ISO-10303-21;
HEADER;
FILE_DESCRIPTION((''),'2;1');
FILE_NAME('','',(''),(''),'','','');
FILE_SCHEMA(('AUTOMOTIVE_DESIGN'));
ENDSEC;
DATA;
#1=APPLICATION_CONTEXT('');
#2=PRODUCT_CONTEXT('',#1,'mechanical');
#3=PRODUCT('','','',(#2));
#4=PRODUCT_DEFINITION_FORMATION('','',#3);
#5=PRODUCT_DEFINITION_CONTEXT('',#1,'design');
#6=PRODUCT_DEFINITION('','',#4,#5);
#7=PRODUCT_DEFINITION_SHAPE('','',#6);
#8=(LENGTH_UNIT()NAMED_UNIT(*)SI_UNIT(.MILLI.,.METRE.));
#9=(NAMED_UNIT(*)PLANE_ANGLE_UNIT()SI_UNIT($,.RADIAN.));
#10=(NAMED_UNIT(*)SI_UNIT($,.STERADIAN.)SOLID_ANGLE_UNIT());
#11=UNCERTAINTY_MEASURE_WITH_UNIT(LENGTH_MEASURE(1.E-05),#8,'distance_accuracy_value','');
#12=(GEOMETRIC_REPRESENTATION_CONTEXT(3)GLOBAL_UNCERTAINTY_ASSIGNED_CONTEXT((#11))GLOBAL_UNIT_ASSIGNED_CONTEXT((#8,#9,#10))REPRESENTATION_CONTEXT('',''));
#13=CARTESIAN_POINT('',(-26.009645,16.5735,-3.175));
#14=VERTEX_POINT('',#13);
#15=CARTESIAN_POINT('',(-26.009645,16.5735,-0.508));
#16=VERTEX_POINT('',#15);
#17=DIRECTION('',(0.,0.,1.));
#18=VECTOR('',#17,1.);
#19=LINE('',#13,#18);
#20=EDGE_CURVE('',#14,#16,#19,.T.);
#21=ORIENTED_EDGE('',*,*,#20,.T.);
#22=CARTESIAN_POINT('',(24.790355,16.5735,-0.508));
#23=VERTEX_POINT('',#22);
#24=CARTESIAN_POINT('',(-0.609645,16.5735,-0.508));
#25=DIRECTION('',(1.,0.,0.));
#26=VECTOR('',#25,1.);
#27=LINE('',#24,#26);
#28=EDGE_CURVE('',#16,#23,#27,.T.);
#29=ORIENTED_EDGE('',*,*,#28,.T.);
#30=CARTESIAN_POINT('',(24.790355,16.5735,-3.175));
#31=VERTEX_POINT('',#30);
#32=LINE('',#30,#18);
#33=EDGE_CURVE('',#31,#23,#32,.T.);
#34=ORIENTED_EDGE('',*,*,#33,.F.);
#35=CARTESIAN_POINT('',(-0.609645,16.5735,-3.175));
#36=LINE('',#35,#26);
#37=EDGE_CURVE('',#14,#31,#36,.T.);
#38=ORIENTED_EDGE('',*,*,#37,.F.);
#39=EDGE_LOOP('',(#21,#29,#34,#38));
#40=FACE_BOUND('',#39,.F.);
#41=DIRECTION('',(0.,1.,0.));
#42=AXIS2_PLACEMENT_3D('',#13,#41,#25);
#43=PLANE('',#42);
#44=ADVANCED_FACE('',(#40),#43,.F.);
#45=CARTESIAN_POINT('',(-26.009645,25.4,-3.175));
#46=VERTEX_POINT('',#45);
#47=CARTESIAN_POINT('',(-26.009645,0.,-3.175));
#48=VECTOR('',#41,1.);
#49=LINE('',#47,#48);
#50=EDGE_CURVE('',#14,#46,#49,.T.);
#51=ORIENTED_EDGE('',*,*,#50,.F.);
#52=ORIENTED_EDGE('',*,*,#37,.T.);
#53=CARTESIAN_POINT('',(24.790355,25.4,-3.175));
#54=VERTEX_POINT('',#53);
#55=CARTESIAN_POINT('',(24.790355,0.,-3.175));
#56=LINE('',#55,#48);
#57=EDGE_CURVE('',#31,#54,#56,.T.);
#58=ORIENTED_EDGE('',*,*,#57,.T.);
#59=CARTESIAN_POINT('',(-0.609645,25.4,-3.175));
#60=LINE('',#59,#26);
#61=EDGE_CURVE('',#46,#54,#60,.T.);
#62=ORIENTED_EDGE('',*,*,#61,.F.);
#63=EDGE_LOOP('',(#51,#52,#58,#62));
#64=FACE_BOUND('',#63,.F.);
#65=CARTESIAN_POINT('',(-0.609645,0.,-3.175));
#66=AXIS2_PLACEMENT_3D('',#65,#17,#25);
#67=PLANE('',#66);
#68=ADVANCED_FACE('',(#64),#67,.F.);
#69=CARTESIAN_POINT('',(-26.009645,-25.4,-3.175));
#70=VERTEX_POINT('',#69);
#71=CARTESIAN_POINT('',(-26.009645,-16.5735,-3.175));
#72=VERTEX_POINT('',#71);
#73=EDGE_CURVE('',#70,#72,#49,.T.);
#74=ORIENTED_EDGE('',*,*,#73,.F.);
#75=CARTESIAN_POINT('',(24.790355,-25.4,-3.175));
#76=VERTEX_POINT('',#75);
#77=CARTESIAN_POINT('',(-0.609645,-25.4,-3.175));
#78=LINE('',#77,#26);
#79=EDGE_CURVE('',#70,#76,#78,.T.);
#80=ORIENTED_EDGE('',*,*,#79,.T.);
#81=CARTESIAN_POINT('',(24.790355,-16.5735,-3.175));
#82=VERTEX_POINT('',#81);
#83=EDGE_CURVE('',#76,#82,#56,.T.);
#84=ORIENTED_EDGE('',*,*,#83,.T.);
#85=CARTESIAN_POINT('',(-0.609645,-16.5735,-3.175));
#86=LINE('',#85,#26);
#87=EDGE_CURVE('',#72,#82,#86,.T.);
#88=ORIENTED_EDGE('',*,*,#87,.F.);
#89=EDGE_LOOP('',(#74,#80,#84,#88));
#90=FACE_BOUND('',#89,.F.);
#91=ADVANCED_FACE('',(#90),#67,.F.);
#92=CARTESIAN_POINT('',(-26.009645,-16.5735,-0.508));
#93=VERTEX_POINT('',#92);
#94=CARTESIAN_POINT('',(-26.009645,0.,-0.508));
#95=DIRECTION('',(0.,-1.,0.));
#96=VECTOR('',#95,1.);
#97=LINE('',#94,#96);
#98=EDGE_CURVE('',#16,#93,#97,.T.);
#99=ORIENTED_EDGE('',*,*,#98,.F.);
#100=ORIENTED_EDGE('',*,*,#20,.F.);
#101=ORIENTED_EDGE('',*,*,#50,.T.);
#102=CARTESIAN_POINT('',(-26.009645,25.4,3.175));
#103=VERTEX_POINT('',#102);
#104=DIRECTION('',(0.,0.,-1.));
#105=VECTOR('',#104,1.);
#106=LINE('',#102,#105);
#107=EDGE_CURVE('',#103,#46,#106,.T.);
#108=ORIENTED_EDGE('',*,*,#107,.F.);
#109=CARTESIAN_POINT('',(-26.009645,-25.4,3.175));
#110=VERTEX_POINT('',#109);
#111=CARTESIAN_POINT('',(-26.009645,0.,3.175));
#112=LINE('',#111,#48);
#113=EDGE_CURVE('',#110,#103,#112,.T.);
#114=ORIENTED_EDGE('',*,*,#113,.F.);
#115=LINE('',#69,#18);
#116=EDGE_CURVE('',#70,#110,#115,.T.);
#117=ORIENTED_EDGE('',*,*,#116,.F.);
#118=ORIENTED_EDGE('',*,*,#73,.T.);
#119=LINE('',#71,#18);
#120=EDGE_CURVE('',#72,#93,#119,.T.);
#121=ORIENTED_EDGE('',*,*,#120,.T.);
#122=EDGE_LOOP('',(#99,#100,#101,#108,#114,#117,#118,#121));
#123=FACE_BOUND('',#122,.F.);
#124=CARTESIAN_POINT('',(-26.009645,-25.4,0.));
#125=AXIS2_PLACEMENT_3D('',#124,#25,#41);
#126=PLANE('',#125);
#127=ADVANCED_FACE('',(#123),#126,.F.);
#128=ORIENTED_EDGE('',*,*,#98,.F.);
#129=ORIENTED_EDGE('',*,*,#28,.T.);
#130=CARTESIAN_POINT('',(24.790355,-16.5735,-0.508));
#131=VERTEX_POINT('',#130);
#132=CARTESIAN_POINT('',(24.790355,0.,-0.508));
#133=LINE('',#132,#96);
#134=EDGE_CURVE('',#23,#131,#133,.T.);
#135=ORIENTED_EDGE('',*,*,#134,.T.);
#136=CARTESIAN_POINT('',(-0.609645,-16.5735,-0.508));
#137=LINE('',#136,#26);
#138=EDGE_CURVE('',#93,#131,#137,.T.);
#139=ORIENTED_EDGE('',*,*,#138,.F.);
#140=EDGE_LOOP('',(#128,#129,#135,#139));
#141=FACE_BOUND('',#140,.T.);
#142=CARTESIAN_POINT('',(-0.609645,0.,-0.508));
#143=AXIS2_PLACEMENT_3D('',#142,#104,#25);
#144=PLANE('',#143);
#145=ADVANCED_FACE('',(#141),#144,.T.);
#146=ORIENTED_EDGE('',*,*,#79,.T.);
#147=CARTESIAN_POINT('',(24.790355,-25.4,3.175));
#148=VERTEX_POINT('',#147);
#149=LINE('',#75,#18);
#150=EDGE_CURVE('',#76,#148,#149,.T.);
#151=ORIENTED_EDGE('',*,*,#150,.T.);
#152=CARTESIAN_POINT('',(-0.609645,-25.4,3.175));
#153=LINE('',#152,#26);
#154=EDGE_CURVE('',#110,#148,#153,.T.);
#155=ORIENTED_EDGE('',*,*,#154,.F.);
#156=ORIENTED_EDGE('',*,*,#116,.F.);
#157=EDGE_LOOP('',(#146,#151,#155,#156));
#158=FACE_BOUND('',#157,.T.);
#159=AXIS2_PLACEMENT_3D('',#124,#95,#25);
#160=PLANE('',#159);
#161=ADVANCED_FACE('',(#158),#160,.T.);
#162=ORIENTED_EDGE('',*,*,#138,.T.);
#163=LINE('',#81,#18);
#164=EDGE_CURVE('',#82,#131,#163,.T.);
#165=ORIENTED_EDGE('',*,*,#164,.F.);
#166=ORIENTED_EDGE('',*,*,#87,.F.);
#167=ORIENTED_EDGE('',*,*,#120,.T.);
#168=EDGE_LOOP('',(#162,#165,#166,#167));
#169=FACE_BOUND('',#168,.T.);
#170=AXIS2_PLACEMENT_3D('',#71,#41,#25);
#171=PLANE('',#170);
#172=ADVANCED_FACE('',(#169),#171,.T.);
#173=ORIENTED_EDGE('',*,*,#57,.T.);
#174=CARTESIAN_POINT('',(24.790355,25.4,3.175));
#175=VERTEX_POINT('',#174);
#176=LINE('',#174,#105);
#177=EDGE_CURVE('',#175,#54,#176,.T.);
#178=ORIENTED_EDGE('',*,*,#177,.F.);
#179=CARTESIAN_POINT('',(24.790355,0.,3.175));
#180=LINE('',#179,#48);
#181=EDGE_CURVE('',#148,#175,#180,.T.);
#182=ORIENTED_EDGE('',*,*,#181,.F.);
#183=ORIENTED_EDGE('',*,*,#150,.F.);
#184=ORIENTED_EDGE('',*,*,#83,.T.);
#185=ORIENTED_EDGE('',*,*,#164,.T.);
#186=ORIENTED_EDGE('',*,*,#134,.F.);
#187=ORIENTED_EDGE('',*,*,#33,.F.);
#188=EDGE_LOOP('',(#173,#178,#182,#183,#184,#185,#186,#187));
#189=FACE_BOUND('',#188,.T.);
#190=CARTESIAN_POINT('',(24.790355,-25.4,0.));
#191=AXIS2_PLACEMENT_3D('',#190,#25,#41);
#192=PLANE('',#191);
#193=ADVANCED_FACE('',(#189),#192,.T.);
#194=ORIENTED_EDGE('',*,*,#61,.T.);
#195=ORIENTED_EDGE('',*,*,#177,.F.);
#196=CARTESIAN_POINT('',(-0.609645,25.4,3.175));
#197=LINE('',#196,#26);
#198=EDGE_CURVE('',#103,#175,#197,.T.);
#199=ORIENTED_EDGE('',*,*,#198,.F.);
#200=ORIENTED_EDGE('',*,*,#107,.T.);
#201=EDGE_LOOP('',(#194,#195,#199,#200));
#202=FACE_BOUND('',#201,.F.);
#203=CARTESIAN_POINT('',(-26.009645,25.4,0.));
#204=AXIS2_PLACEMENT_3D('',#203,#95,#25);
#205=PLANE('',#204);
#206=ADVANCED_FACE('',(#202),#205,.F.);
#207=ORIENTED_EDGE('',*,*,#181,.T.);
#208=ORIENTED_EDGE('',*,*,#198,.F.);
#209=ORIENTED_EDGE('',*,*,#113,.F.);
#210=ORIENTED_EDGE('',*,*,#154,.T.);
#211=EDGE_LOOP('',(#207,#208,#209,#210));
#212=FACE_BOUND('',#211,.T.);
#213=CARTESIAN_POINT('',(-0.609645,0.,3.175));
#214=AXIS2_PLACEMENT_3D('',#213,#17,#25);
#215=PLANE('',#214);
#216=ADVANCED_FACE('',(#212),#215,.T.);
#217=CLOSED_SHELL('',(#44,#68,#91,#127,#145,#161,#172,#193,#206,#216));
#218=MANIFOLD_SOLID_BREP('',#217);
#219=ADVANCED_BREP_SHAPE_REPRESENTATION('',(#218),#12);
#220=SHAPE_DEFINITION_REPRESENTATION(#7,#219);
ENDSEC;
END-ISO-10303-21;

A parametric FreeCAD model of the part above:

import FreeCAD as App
import Part
import Sketcher

V = App.Vector
Q = App.Units.Quantity

doc = App.newDocument("Part")
params = doc.addObject("Spreadsheet::Sheet", "Params")
for row, (alias, value) in enumerate([
    ("sketch1_width", "2 in"),
    ("pad1_length", "0.25 in"),
    ("sketch2_width", "2 in"),
    ("sketch2_height", "1.305 in"),
    ("pocket1_length", "0.105 in"),
], start=1):
    params.set(f"A{row}", alias)
    params.set(f"B{row}", "=" + value)
    params.setAlias(f"B{row}", alias)

body = doc.addObject("PartDesign::Body", "Body")

# Sketch on XY plane
sketch1 = body.newObject("Sketcher::SketchObject", "Sketch")
sketch1.AttachmentSupport = (doc.getObject("XY_Plane"), [""])
sketch1.MapMode = "FlatFace"
sketch1.addGeometry([
    Part.LineSegment(V(-26, 25, 0), V(-26, -25, 0)),
    Part.LineSegment(V(-26, -25, 0), V(25, -25, 0)),
    Part.LineSegment(V(25, -25, 0), V(25, 25, 0)),
    Part.LineSegment(V(25, 25, 0), V(-26, 25, 0)),
], False)
sketch1.addConstraint([
    Sketcher.Constraint("Coincident", 0, 2, 1, 1),
    Sketcher.Constraint("Coincident", 1, 2, 2, 1),
    Sketcher.Constraint("Coincident", 2, 2, 3, 1),
    Sketcher.Constraint("Coincident", 3, 2, 0, 1),
    Sketcher.Constraint("Vertical", 0),
    Sketcher.Constraint("Horizontal", 1),
    Sketcher.Constraint("Vertical", 2),
    Sketcher.Constraint("Horizontal", 3),
    Sketcher.Constraint("Equal", 3, 0),
    Sketcher.Constraint("DistanceX", 1, 1, 1, 2, Q("2 in")),
    Sketcher.Constraint("DistanceY", 0, 2, -1, 1, Q("1 in")),
    Sketcher.Constraint("DistanceX", 0, 2, -1, 1, Q("26.009645 mm")),
])
sketch1.setExpression("Constraints[9]", "Params.sketch1_width")
pad1 = body.newObject("PartDesign::Pad", "Pad")
pad1.Profile = sketch1
pad1.setExpression("Length", "Params.pad1_length")
pad1.Midplane = True

# Sketch on XY plane
sketch2 = body.newObject("Sketcher::SketchObject", "Sketch001")
sketch2.AttachmentSupport = (doc.getObject("XY_Plane"), [""])
sketch2.MapMode = "FlatFace"
sketch2.AttachmentOffset = App.Placement(V(0, 0, -0.125 * 25.4), App.Rotation())
sketch2.addGeometry([
    Part.LineSegment(V(-26, -17, 0), V(-26, 17, 0)),
    Part.LineSegment(V(-26, 17, 0), V(25, 17, 0)),
    Part.LineSegment(V(25, 17, 0), V(25, -17, 0)),
    Part.LineSegment(V(25, -17, 0), V(-26, -17, 0)),
], False)
sketch2.addConstraint([
    Sketcher.Constraint("Coincident", 0, 2, 1, 1),
    Sketcher.Constraint("Coincident", 1, 2, 2, 1),
    Sketcher.Constraint("Coincident", 2, 2, 3, 1),
    Sketcher.Constraint("Coincident", 3, 2, 0, 1),
    Sketcher.Constraint("Vertical", 0),
    Sketcher.Constraint("Horizontal", 1),
    Sketcher.Constraint("Vertical", 2),
    Sketcher.Constraint("Horizontal", 3),
    Sketcher.Constraint("DistanceX", 1, 1, 1, 2, Q("2 in")),
    Sketcher.Constraint("DistanceY", 0, 1, 0, 2, Q("1.305 in")),
    Sketcher.Constraint("DistanceY", -1, 1, 0, 2, Q("0.6525 in")),
    Sketcher.Constraint("DistanceX", 0, 2, -1, 1, Q("26.009645 mm")),
])
sketch2.setExpression("Constraints[8]", "Params.sketch2_width")
sketch2.setExpression("Constraints[9]", "Params.sketch2_height")
pocket1 = body.newObject("PartDesign::Pocket", "Pocket")
pocket1.Profile = sketch2
pocket1.setExpression("Length", "Params.pocket1_length")
pocket1.Reversed = True

doc.recompute()
